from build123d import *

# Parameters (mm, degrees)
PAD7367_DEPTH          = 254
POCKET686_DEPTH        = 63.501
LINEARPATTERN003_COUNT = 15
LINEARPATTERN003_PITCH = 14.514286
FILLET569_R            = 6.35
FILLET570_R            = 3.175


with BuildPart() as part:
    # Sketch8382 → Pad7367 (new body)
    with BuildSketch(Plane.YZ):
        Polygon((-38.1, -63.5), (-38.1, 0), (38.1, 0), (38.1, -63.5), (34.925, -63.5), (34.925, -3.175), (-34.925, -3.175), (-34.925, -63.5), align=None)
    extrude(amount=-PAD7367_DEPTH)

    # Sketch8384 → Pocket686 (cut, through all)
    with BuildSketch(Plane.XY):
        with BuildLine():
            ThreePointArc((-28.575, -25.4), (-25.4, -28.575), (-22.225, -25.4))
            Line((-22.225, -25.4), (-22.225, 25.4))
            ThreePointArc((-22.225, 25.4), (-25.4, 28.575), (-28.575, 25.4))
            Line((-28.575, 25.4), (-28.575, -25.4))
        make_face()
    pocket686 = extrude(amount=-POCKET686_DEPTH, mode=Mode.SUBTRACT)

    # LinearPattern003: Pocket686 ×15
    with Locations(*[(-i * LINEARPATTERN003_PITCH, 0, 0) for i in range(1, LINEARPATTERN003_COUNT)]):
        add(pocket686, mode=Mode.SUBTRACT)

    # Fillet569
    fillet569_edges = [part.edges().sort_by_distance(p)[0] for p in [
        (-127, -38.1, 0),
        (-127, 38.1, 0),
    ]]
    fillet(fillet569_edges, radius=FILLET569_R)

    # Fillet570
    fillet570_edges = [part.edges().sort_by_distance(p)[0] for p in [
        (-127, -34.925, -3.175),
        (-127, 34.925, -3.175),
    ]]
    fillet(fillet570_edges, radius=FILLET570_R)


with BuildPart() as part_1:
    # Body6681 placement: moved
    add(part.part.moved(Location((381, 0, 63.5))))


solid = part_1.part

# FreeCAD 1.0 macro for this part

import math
import FreeCAD as App
import Part
import Sketcher

V = App.Vector
Q = App.Units.Quantity


def edges_at(feature, points):
    """Names of the edges that pass closest to the given points."""
    edges = feature.Shape.Edges
    near = lambda p: min(range(len(edges)), key=lambda i: edges[i].distToShape(Part.Vertex(*p))[0])
    return sorted({f"Edge{near(p) + 1}" for p in points})


def add_polygon(sketch, points):
    """Adds a closed chain of lines whose ends are joined by coincident constraints."""
    first, n = sketch.GeometryCount, len(points)
    for a, b in zip(points, points[1:] + points[:1]):
        sketch.addGeometry(Part.LineSegment(App.Vector(*a, 0), App.Vector(*b, 0)), False)
    for i in range(n):
        sketch.addConstraint(Sketcher.Constraint("Coincident", first + i, 2, first + (i + 1) % n, 1))

doc = App.newDocument("Part")
body = doc.addObject("PartDesign::Body", "Body")

sketch1 = body.newObject("Sketcher::SketchObject", "Sketch")
sketch1.AttachmentSupport = (doc.getObject("YZ_Plane"), [""])
sketch1.MapMode = "FlatFace"
add_polygon(sketch1, [(-38.1, 0), (-38.1, -63.5), (-34.9, -63.5), (-34.9, -3.2), (34.9, -3.2), (34.9, -63.5), (38.1, -63.5), (38.1, 0)])
sketch1.addConstraint(Sketcher.Constraint("Vertical", 0))
sketch1.addConstraint(Sketcher.Constraint("Horizontal", 1))
sketch1.addConstraint(Sketcher.Constraint("Vertical", 2))
sketch1.addConstraint(Sketcher.Constraint("Horizontal", 3))
sketch1.addConstraint(Sketcher.Constraint("Vertical", 4))
sketch1.addConstraint(Sketcher.Constraint("Horizontal", 5))
sketch1.addConstraint(Sketcher.Constraint("Vertical", 6))
sketch1.addConstraint(Sketcher.Constraint("Horizontal", 7))
sketch1.addConstraint(Sketcher.Constraint("Symmetric", 6, 2, 7, 2, -1, 1))
sketch1.addConstraint(Sketcher.Constraint("Symmetric", 1, 2, 4, 2, -2))
sketch1.addConstraint(Sketcher.Constraint("DistanceX", 7, 2, 7, 1, Q("3 in")))
sketch1.addConstraint(Sketcher.Constraint("DistanceY", 0, 2, 0, 1, Q("2.5 in")))
sketch1.addConstraint(Sketcher.Constraint("DistanceX", 3, 1, 3, 2, Q("2.75 in")))
sketch1.addConstraint(Sketcher.Constraint("DistanceY", 2, 1, 2, 2, Q("2.375 in")))
pad1 = body.newObject("PartDesign::Pad", "Pad")
pad1.Profile = sketch1
pad1.Length = Q("10 in")
pad1.Reversed = True

sketch2 = body.newObject("Sketcher::SketchObject", "Sketch001")
sketch2.AttachmentSupport = (doc.getObject("XY_Plane"), [""])
sketch2.MapMode = "FlatFace"
sketch2.addGeometry(Part.ArcOfCircle(Part.Circle(V(-25.4, -25.4, 0), V(0, 0, 1), 3.2), math.radians(180), math.radians(360)), False)
sketch2.addGeometry(Part.LineSegment(V(-22.2, -25.4, 0), V(-22.2, 25.4, 0)), False)
sketch2.addGeometry(Part.ArcOfCircle(Part.Circle(V(-25.4, 25.4, 0), V(0, 0, 1), 3.2), math.radians(0), math.radians(180)), False)
sketch2.addGeometry(Part.LineSegment(V(-28.6, 25.4, 0), V(-28.6, -25.4, 0)), False)
sketch2.addConstraint(Sketcher.Constraint("Tangent", 0, 2, 1, 1))
sketch2.addConstraint(Sketcher.Constraint("Tangent", 1, 2, 2, 1))
sketch2.addConstraint(Sketcher.Constraint("Tangent", 2, 2, 3, 1))
sketch2.addConstraint(Sketcher.Constraint("Tangent", 3, 2, 0, 1))
sketch2.addConstraint(Sketcher.Constraint("Vertical", 1))
sketch2.addConstraint(Sketcher.Constraint("Vertical", 3))
sketch2.addConstraint(Sketcher.Constraint("DistanceY", 1, 1, 1, 2, Q("2 in")))
sketch2.addConstraint(Sketcher.Constraint("DistanceX", 0, 3, -1, 1, Q("1 in")))
sketch2.addConstraint(Sketcher.Constraint("DistanceY", 0, 3, -1, 1, Q("1 in")))
sketch2.addConstraint(Sketcher.Constraint("Radius", 0, Q("0.125 in")))
pocket1 = body.newObject("PartDesign::Pocket", "Pocket")
pocket1.Profile = sketch2
pocket1.Type = "ThroughAll"
doc.recompute()

linearpattern = body.newObject("PartDesign::LinearPattern", "LinearPattern")
linearpattern.Originals = [pocket1]
linearpattern.Direction = (doc.getObject("X_Axis"), [""])
linearpattern.Mode = "offset"
linearpattern.Offset = 14.514286
linearpattern.Occurrences = 15
linearpattern.Reversed = True
body.Tip = linearpattern
doc.recompute()

fillet = body.newObject("PartDesign::Fillet", "Fillet")
fillet.Base = (linearpattern, edges_at(linearpattern, [(-127, -38.1, 0), (-127, 38.1, 0)]))
fillet.Radius = Q("0.25 in")
doc.recompute()

fillet2 = body.newObject("PartDesign::Fillet", "Fillet001")
fillet2.Base = (fillet, edges_at(fillet, [(-127, -34.925, -3.175), (-127, 34.925, -3.175)]))
fillet2.Radius = Q("0.125 in")
body2 = doc.addObject("PartDesign::Body", "Body001")
doc.recompute()

body.Placement = App.Placement(V(381, 0, 63.5), App.Rotation(V(0, 0, 1), 0))
boolean = body2.newObject("PartDesign::Boolean", "Boolean")
boolean.Type = "Fuse"
boolean.addObjects([body])

doc.recompute()
